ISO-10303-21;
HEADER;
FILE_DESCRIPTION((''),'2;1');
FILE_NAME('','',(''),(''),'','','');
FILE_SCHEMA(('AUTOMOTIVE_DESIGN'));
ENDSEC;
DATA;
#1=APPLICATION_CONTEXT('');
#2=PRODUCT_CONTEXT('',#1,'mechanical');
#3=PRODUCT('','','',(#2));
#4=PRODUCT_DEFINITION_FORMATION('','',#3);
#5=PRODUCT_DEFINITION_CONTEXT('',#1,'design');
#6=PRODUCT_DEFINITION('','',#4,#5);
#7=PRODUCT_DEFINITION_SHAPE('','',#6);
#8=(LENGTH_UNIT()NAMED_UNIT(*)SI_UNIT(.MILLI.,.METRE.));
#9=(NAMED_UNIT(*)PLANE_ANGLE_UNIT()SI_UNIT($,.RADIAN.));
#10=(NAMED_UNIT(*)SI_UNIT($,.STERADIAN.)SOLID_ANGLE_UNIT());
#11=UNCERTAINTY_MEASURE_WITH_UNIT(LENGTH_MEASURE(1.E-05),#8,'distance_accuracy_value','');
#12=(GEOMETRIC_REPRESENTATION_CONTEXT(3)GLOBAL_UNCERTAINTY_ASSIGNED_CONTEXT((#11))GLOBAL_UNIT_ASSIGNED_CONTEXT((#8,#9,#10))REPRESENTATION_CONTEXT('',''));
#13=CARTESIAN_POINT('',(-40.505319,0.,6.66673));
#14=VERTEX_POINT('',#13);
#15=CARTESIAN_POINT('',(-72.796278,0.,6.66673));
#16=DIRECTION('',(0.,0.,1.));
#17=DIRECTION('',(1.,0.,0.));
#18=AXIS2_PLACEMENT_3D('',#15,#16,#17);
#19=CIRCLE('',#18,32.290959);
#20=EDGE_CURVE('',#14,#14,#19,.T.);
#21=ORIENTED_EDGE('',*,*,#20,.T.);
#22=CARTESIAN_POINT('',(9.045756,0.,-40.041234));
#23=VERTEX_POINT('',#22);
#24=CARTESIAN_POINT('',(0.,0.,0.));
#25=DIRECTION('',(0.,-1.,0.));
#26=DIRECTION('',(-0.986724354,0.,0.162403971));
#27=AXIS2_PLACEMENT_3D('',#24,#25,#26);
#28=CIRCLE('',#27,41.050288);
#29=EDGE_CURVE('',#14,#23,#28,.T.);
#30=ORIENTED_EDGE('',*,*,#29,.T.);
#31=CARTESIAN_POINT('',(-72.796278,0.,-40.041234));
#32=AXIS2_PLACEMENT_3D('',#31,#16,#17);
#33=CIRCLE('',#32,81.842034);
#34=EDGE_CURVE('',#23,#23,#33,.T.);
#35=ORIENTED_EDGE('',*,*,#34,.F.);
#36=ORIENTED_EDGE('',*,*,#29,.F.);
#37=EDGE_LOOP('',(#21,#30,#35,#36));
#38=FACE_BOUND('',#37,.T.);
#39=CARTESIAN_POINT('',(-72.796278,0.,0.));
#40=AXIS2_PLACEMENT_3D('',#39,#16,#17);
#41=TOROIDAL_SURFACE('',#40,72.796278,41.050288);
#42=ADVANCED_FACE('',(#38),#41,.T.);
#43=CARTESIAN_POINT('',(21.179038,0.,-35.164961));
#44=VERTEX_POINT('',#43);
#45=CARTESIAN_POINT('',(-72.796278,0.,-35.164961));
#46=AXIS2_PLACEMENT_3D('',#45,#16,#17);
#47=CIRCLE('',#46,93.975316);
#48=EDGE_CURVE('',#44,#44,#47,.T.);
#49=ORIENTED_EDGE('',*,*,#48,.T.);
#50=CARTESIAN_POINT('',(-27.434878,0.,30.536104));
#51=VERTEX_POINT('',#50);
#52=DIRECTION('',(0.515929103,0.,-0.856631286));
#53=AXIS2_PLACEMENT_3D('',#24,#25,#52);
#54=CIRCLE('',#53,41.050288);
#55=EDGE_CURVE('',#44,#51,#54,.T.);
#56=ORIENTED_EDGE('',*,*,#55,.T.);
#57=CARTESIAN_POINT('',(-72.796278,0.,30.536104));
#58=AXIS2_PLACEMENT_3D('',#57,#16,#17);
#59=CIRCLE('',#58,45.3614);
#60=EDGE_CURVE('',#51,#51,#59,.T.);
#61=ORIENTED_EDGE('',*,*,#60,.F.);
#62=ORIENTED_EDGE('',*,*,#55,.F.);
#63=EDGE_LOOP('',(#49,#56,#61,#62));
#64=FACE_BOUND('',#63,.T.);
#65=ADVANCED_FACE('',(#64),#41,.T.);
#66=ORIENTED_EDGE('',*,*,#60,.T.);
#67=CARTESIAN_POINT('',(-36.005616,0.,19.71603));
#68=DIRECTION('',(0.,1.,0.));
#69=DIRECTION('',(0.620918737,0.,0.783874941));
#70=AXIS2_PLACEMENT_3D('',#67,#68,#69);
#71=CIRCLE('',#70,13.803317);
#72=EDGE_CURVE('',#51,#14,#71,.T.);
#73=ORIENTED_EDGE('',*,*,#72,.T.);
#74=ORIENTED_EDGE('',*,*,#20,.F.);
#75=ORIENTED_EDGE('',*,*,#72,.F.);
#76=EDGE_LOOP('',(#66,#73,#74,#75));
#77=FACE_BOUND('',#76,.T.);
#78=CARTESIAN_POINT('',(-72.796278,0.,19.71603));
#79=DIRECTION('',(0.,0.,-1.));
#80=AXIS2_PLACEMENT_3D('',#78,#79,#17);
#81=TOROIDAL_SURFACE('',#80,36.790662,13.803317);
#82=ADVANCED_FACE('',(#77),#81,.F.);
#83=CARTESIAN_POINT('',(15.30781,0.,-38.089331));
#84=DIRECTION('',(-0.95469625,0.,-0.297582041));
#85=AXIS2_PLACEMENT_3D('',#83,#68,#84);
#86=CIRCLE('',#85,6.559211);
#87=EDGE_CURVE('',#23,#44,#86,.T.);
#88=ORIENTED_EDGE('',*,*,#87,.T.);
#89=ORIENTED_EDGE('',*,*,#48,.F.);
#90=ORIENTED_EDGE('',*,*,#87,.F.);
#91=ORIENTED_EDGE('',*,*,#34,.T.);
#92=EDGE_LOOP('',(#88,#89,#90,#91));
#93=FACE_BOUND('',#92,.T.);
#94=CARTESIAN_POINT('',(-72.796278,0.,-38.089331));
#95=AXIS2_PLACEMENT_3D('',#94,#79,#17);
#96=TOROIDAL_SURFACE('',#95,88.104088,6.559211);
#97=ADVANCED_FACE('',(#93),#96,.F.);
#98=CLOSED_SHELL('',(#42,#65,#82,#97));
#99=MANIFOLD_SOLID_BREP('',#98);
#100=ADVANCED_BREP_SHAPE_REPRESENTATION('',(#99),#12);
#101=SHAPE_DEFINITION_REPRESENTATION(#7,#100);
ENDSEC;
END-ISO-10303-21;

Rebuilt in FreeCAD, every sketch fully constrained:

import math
import FreeCAD as App
import Part
import Sketcher
from FreeCAD import Vector
Q = App.Units.Quantity

doc = App.newDocument("Part")
body = doc.addObject("PartDesign::Body", "Body")

# Sketch on XZ plane
sketch1 = body.newObject("Sketcher::SketchObject", "Sketch")
sketch1.AttachmentSupport = (doc.getObject("XZ_Plane"), [""])
sketch1.MapMode = "FlatFace"
sketch1.addGeometry([
    Part.ArcOfCircle(Part.Circle(Vector(-36, 20, 0), Vector(0, 0, 1), 14), math.radians(-109), math.radians(52)),
    Part.ArcOfCircle(Part.Circle(Vector(0, 0, 0), Vector(0, 0, 1), 41), math.radians(171), math.radians(283)),
    Part.ArcOfCircle(Part.Circle(Vector(15, -38, 0), Vector(0, 0, 1), 7), math.radians(26), math.radians(197)),
    Part.ArcOfCircle(Part.Circle(Vector(0, 0, 0), Vector(0, 0, 1), 41), math.radians(-59), math.radians(132)),
], False)
sketch1.addGeometry(Part.LineSegment(Vector(-73, -40, 0), Vector(-73, 31, 0)), True)  # axis
sketch1.addConstraint([
    Sketcher.Constraint("Coincident", 0, 1, 1, 1),
    Sketcher.Constraint("Coincident", 1, 2, 2, 2),
    Sketcher.Constraint("Coincident", 2, 1, 3, 1),
    Sketcher.Constraint("Coincident", 3, 2, 0, 2),
    Sketcher.Constraint("Vertical", 4),
    Sketcher.Constraint("Coincident", 1, 3, -1, 1),
    Sketcher.Constraint("Coincident", 3, 3, -1, 1),
    Sketcher.Constraint("Equal", 1, 3),
    Sketcher.Constraint("Horizontal", 1, 2, 4, 1),
    Sketcher.Constraint("Horizontal", 3, 2, 4, 2),
    Sketcher.Constraint("Radius", 2, Q("6.559211 mm")),
    Sketcher.Constraint("Radius", 3, Q("41.050288 mm")),
    Sketcher.Constraint("Radius", 0, Q("13.803317 mm")),
    Sketcher.Constraint("DistanceY", 0, 1, 0, 3, Q("13.0493 mm")),
    Sketcher.Constraint("DistanceX", 4, 2, 3, 2, Q("45.3614 mm")),
    Sketcher.Constraint("DistanceY", 4, 1, 4, 2, Q("70.577338 mm")),
    Sketcher.Constraint("DistanceY", -1, 1, 0, 3, Q("19.71603 mm")),
    Sketcher.Constraint("DistanceX", -1, 1, 2, 3, Q("15.30781 mm")),
])
revolution = body.newObject("PartDesign::Revolution", "Revolution")
revolution.Profile = sketch1
revolution.ReferenceAxis = (sketch1, ["Axis0"])
revolution.Angle = 360

doc.recompute()
